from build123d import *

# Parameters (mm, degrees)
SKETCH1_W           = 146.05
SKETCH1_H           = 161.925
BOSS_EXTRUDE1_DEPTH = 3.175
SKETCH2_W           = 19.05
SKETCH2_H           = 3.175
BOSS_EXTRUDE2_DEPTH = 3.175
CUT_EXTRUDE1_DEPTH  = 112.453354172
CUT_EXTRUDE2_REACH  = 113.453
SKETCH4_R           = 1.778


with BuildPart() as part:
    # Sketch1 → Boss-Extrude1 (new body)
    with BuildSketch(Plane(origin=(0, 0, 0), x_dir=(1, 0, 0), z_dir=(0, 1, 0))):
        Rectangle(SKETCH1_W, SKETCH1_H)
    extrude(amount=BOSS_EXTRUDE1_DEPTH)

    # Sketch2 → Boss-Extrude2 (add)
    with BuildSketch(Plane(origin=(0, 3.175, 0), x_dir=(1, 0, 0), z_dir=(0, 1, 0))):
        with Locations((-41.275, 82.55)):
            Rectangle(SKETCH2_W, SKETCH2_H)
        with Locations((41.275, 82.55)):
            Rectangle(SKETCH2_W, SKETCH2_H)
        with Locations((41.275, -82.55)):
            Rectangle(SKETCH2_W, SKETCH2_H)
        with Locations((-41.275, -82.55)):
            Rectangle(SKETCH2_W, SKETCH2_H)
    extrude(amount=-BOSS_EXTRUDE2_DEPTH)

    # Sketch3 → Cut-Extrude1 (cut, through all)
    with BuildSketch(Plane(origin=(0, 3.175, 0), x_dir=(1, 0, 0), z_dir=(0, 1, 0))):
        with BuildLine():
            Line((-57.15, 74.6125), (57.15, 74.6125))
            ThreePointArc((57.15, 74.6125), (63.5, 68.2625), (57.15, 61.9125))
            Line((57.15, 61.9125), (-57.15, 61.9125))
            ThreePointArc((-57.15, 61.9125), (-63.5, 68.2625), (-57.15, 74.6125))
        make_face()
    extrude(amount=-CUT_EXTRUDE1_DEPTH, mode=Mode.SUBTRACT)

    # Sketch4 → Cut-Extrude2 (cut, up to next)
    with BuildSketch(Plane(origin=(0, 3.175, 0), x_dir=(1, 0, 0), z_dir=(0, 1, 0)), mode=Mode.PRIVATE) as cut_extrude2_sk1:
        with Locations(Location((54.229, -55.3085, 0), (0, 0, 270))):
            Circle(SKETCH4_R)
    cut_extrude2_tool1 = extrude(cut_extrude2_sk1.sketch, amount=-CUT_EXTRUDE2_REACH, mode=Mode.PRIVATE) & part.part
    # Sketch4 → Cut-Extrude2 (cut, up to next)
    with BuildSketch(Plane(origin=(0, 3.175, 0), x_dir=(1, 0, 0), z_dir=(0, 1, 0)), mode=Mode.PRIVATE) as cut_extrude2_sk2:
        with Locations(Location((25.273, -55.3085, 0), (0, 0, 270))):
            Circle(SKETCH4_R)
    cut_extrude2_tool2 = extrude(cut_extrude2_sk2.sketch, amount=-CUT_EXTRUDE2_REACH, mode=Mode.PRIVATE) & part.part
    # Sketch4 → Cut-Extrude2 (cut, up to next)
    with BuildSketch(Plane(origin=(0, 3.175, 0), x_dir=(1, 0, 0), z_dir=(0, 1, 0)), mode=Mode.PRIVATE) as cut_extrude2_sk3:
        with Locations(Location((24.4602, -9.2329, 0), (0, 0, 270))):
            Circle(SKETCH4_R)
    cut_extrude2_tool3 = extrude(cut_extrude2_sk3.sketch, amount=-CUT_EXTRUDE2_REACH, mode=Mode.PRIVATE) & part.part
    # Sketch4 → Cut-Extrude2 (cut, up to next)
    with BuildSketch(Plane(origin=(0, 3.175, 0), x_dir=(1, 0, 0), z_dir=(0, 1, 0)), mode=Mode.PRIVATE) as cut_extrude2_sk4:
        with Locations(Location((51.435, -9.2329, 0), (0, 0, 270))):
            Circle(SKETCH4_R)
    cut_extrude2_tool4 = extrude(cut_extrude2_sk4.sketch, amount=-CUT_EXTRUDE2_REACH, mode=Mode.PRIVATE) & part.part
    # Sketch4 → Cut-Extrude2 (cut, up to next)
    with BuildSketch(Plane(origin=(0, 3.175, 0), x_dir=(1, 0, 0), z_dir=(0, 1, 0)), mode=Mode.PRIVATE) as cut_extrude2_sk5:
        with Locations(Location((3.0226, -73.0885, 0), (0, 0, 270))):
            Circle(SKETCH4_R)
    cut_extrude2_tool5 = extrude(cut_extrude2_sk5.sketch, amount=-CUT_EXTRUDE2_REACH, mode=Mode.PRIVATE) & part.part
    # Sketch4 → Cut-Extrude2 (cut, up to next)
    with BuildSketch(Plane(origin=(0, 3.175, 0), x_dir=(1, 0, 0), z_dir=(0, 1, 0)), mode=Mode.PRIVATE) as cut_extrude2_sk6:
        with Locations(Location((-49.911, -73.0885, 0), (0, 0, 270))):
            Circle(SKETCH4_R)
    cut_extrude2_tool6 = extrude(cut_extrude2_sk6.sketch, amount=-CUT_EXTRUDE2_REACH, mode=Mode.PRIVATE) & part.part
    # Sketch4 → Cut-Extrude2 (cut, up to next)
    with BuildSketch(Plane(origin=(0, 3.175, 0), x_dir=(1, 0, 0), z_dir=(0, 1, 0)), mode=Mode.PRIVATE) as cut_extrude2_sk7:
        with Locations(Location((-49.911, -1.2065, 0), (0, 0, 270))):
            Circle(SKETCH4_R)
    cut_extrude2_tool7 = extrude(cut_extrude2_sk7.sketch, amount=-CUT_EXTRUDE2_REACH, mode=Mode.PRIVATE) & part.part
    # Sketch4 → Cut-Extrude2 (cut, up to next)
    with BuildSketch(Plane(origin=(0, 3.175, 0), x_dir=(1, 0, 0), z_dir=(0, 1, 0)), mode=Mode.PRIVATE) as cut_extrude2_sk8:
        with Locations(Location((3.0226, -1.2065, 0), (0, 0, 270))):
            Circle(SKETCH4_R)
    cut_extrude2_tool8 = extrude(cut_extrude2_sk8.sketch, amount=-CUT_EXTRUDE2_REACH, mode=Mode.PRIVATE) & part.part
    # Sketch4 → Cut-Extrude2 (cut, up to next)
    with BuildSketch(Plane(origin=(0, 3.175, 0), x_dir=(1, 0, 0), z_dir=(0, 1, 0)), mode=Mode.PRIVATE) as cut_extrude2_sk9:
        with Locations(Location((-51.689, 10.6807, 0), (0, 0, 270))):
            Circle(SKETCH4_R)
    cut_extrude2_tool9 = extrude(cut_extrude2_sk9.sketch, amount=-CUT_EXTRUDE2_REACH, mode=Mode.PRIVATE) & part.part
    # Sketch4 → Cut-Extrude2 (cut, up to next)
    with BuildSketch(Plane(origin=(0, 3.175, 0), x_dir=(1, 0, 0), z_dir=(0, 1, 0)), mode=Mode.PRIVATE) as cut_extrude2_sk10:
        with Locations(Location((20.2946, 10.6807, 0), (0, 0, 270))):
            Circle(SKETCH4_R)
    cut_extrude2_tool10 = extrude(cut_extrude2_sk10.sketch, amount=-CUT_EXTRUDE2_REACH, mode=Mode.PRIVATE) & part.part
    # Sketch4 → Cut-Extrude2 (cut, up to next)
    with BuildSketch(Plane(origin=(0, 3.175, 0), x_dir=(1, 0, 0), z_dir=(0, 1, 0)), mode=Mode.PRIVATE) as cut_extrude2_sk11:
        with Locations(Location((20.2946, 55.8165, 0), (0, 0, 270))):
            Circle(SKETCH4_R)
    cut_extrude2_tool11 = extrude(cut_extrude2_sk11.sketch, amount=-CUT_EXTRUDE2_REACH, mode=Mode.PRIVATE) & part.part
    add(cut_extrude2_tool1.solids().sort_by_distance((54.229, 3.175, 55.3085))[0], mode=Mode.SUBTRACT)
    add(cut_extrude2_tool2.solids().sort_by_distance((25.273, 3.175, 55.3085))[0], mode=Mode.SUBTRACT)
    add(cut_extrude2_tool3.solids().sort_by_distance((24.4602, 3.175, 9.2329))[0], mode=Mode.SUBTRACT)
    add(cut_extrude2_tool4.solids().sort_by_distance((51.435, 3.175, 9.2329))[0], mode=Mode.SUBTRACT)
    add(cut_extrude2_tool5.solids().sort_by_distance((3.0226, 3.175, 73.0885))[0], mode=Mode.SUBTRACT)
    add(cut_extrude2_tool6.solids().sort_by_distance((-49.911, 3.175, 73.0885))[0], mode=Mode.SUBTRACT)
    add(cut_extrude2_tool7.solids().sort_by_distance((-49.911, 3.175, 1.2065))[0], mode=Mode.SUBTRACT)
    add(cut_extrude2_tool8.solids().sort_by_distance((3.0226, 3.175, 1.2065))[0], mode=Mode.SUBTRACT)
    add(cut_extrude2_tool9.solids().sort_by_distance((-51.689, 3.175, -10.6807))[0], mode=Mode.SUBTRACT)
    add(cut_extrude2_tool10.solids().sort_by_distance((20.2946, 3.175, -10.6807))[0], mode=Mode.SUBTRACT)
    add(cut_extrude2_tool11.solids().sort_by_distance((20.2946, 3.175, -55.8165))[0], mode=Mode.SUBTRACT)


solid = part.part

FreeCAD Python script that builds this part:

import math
import FreeCAD as App
import Part
import Sketcher

V = App.Vector
Q = App.Units.Quantity


def add_polygon(sketch, points):
    """Adds a closed chain of lines whose ends are joined by coincident constraints."""
    first, n = sketch.GeometryCount, len(points)
    for a, b in zip(points, points[1:] + points[:1]):
        sketch.addGeometry(Part.LineSegment(App.Vector(*a, 0), App.Vector(*b, 0)), False)
    for i in range(n):
        sketch.addConstraint(Sketcher.Constraint("Coincident", first + i, 2, first + (i + 1) % n, 1))

doc = App.newDocument("Part")
body = doc.addObject("PartDesign::Body", "Body")

sketch1 = doc.addObject("Sketcher::SketchObject", "Sketch")
body.addObject(sketch1)
sketch1.AttachmentSupport = (doc.XZ_Plane, [""])
sketch1.MapMode = "FlatFace"
add_polygon(sketch1, [(-73.025, -80.9625), (-73.025, 80.9625), (73.025, 80.9625), (73.025, -80.9625)])
sketch1.addConstraint(Sketcher.Constraint("Vertical", 0))
sketch1.addConstraint(Sketcher.Constraint("Horizontal", 1))
sketch1.addConstraint(Sketcher.Constraint("Vertical", 2))
sketch1.addConstraint(Sketcher.Constraint("Horizontal", 3))
sketch1.addConstraint(Sketcher.Constraint("Symmetric", 0, 2, 2, 2, -1, 1))
sketch1.addConstraint(Sketcher.Constraint("DistanceX", 1, 1, 1, 2, Q("5.75 in")))
sketch1.addConstraint(Sketcher.Constraint("DistanceY", 0, 1, 0, 2, Q("6.375 in")))
pad1 = doc.addObject("PartDesign::Pad", "Pad")
body.addObject(pad1)
pad1.Profile = sketch1
pad1.Length = Q("0.125 in")
pad1.Reversed = True

sketch2 = doc.addObject("Sketcher::SketchObject", "Sketch001")
body.addObject(sketch2)
sketch2.AttachmentSupport = (doc.XZ_Plane, [""])
sketch2.MapMode = "FlatFace"
sketch2.AttachmentOffset = App.Placement(V(0, 0, -0.125 * 25.4), App.Rotation())
add_polygon(sketch2, [(-50.8, -84.1375), (-50.8, -80.9625), (-31.75, -80.9625), (-31.75, -84.1375)])
add_polygon(sketch2, [(31.75, -84.1375), (31.75, -80.9625), (50.8, -80.9625), (50.8, -84.1375)])
add_polygon(sketch2, [(31.75, 80.9625), (31.75, 84.1375), (50.8, 84.1375), (50.8, 80.9625)])
add_polygon(sketch2, [(-50.8, 80.9625), (-50.8, 84.1375), (-31.75, 84.1375), (-31.75, 80.9625)])
sketch2.addConstraint(Sketcher.Constraint("Vertical", 0))
sketch2.addConstraint(Sketcher.Constraint("Horizontal", 1))
sketch2.addConstraint(Sketcher.Constraint("Vertical", 2))
sketch2.addConstraint(Sketcher.Constraint("Horizontal", 3))
sketch2.addConstraint(Sketcher.Constraint("Vertical", 4))
sketch2.addConstraint(Sketcher.Constraint("Horizontal", 5))
sketch2.addConstraint(Sketcher.Constraint("Vertical", 6))
sketch2.addConstraint(Sketcher.Constraint("Horizontal", 7))
sketch2.addConstraint(Sketcher.Constraint("Vertical", 8))
sketch2.addConstraint(Sketcher.Constraint("Horizontal", 9))
sketch2.addConstraint(Sketcher.Constraint("Vertical", 10))
sketch2.addConstraint(Sketcher.Constraint("Horizontal", 11))
sketch2.addConstraint(Sketcher.Constraint("Vertical", 12))
sketch2.addConstraint(Sketcher.Constraint("Horizontal", 13))
sketch2.addConstraint(Sketcher.Constraint("Vertical", 14))
sketch2.addConstraint(Sketcher.Constraint("Horizontal", 15))
sketch2.addConstraint(Sketcher.Constraint("Symmetric", 2, 2, 8, 2, -1, 1))
sketch2.addConstraint(Sketcher.Constraint("Symmetric", 0, 2, 10, 2, -1, 1))
sketch2.addConstraint(Sketcher.Constraint("Symmetric", 6, 2, 12, 2, -1, 1))
sketch2.addConstraint(Sketcher.Constraint("Symmetric", 4, 2, 14, 2, -1, 1))
sketch2.addConstraint(Sketcher.Constraint("Symmetric", 1, 2, 4, 2, -2))
sketch2.addConstraint(Sketcher.Constraint("Symmetric", 3, 2, 6, 2, -2))
sketch2.addConstraint(Sketcher.Constraint("DistanceX", 0, 2, -1, 1, Q("2 in")))
sketch2.addConstraint(Sketcher.Constraint("DistanceX", 1, 1, 1, 2, Q("0.75 in")))
sketch2.addConstraint(Sketcher.Constraint("DistanceY", 4, 2, 8, 2, Q("6.5 in")))
sketch2.addConstraint(Sketcher.Constraint("DistanceY", 0, 1, 0, 2, Q("0.125 in")))
pad2 = doc.addObject("PartDesign::Pad", "Pad001")
body.addObject(pad2)
pad2.Profile = sketch2
pad2.Length = Q("0.125 in")

sketch3 = doc.addObject("Sketcher::SketchObject", "Sketch002")
body.addObject(sketch3)
sketch3.AttachmentSupport = (doc.XZ_Plane, [""])
sketch3.MapMode = "FlatFace"
sketch3.AttachmentOffset = App.Placement(V(0, 0, -0.125 * 25.4), App.Rotation())
sketch3.addGeometry(Part.LineSegment(V(57.15, -74.6125, 0), V(-57.15, -74.6125, 0)), False)
sketch3.addGeometry(Part.ArcOfCircle(Part.Circle(V(-57.15, -68.2625, 0), V(0, 0, 1), 6.35), math.radians(90), math.radians(270)), False)
sketch3.addGeometry(Part.LineSegment(V(-57.15, -61.9125, 0), V(57.15, -61.9125, 0)), False)
sketch3.addGeometry(Part.ArcOfCircle(Part.Circle(V(57.15, -68.2625, 0), V(0, 0, 1), 6.35), math.radians(-90), math.radians(90)), False)
sketch3.addConstraint(Sketcher.Constraint("Tangent", 0, 2, 1, 2))
sketch3.addConstraint(Sketcher.Constraint("Tangent", 1, 1, 2, 1))
sketch3.addConstraint(Sketcher.Constraint("Tangent", 2, 2, 3, 2))
sketch3.addConstraint(Sketcher.Constraint("Tangent", 3, 1, 0, 1))
sketch3.addConstraint(Sketcher.Constraint("Horizontal", 0))
sketch3.addConstraint(Sketcher.Constraint("Horizontal", 2))
sketch3.addConstraint(Sketcher.Constraint("Radius", 1, Q("0.25 in")))
sketch3.addConstraint(Sketcher.Constraint("DistanceX", 0, 2, 0, 1, Q("4.5 in")))
sketch3.addConstraint(Sketcher.Constraint("DistanceX", 1, 3, -1, 1, Q("2.25 in")))
sketch3.addConstraint(Sketcher.Constraint("DistanceY", 1, 3, -1, 1, Q("2.6875 in")))
pocket1 = doc.addObject("PartDesign::Pocket", "Pocket")
body.addObject(pocket1)
pocket1.Profile = sketch3
pocket1.Type = "ThroughAll"
pocket1.Reversed = True

sketch4 = doc.addObject("Sketcher::SketchObject", "Sketch003")
body.addObject(sketch4)
sketch4.AttachmentSupport = (doc.XZ_Plane, [""])
sketch4.MapMode = "FlatFace"
sketch4.AttachmentOffset = App.Placement(V(0, 0, -0.125 * 25.4), App.Rotation())
sketch4.addGeometry(Part.Circle(V(54.229, 55.3085, 0), V(0, 0, 1), 1.778), False)
sketch4.addConstraint(Sketcher.Constraint("Diameter", 0, Q("0.14 in")))
sketch4.addConstraint(Sketcher.Constraint("DistanceX", -1, 1, 0, 3, Q("2.135 in")))
sketch4.addConstraint(Sketcher.Constraint("DistanceY", -1, 1, 0, 3, Q("2.1775 in")))
pocket2 = doc.addObject("PartDesign::Pocket", "Pocket001")
body.addObject(pocket2)
pocket2.Profile = sketch4
pocket2.Type = "UpToFirst"
pocket2.Reversed = True

sketch5 = doc.addObject("Sketcher::SketchObject", "Sketch004")
body.addObject(sketch5)
sketch5.AttachmentSupport = (doc.XZ_Plane, [""])
sketch5.MapMode = "FlatFace"
sketch5.AttachmentOffset = App.Placement(V(0, 0, -0.125 * 25.4), App.Rotation())
sketch5.addGeometry(Part.Circle(V(25.273, 55.3085, 0), V(0, 0, 1), 1.778), False)
sketch5.addConstraint(Sketcher.Constraint("Diameter", 0, Q("0.14 in")))
sketch5.addConstraint(Sketcher.Constraint("DistanceX", -1, 1, 0, 3, Q("0.995 in")))
sketch5.addConstraint(Sketcher.Constraint("DistanceY", -1, 1, 0, 3, Q("2.1775 in")))
pocket3 = doc.addObject("PartDesign::Pocket", "Pocket002")
body.addObject(pocket3)
pocket3.Profile = sketch5
pocket3.Type = "UpToFirst"
pocket3.Reversed = True

sketch6 = doc.addObject("Sketcher::SketchObject", "Sketch005")
body.addObject(sketch6)
sketch6.AttachmentSupport = (doc.XZ_Plane, [""])
sketch6.MapMode = "FlatFace"
sketch6.AttachmentOffset = App.Placement(V(0, 0, -0.125 * 25.4), App.Rotation())
sketch6.addGeometry(Part.Circle(V(24.4602, 9.2329, 0), V(0, 0, 1), 1.778), False)
sketch6.addConstraint(Sketcher.Constraint("Diameter", 0, Q("0.14 in")))
sketch6.addConstraint(Sketcher.Constraint("DistanceX", -1, 1, 0, 3, Q("0.963 in")))
sketch6.addConstraint(Sketcher.Constraint("DistanceY", -1, 1, 0, 3, Q("0.3635 in")))
pocket4 = doc.addObject("PartDesign::Pocket", "Pocket003")
body.addObject(pocket4)
pocket4.Profile = sketch6
pocket4.Type = "UpToFirst"
pocket4.Reversed = True

sketch7 = doc.addObject("Sketcher::SketchObject", "Sketch006")
body.addObject(sketch7)
sketch7.AttachmentSupport = (doc.XZ_Plane, [""])
sketch7.MapMode = "FlatFace"
sketch7.AttachmentOffset = App.Placement(V(0, 0, -0.125 * 25.4), App.Rotation())
sketch7.addGeometry(Part.Circle(V(51.435, 9.2329, 0), V(0, 0, 1), 1.778), False)
sketch7.addConstraint(Sketcher.Constraint("Diameter", 0, Q("0.14 in")))
sketch7.addConstraint(Sketcher.Constraint("DistanceX", -1, 1, 0, 3, Q("2.025 in")))
sketch7.addConstraint(Sketcher.Constraint("DistanceY", -1, 1, 0, 3, Q("0.3635 in")))
pocket5 = doc.addObject("PartDesign::Pocket", "Pocket004")
body.addObject(pocket5)
pocket5.Profile = sketch7
pocket5.Type = "UpToFirst"
pocket5.Reversed = True

sketch8 = doc.addObject("Sketcher::SketchObject", "Sketch007")
body.addObject(sketch8)
sketch8.AttachmentSupport = (doc.XZ_Plane, [""])
sketch8.MapMode = "FlatFace"
sketch8.AttachmentOffset = App.Placement(V(0, 0, -0.125 * 25.4), App.Rotation())
sketch8.addGeometry(Part.Circle(V(3.0226, 73.0885, 0), V(0, 0, 1), 1.778), False)
sketch8.addConstraint(Sketcher.Constraint("Diameter", 0, Q("0.14 in")))
sketch8.addConstraint(Sketcher.Constraint("DistanceX", -1, 1, 0, 3, Q("0.119 in")))
sketch8.addConstraint(Sketcher.Constraint("DistanceY", -1, 1, 0, 3, Q("2.8775 in")))
pocket6 = doc.addObject("PartDesign::Pocket", "Pocket005")
body.addObject(pocket6)
pocket6.Profile = sketch8
pocket6.Type = "UpToFirst"
pocket6.Reversed = True

sketch9 = doc.addObject("Sketcher::SketchObject", "Sketch008")
body.addObject(sketch9)
sketch9.AttachmentSupport = (doc.XZ_Plane, [""])
sketch9.MapMode = "FlatFace"
sketch9.AttachmentOffset = App.Placement(V(0, 0, -0.125 * 25.4), App.Rotation())
sketch9.addGeometry(Part.Circle(V(-49.911, 73.0885, 0), V(0, 0, 1), 1.778), False)
sketch9.addConstraint(Sketcher.Constraint("Diameter", 0, Q("0.14 in")))
sketch9.addConstraint(Sketcher.Constraint("DistanceX", 0, 3, -1, 1, Q("1.965 in")))
sketch9.addConstraint(Sketcher.Constraint("DistanceY", -1, 1, 0, 3, Q("2.8775 in")))
pocket7 = doc.addObject("PartDesign::Pocket", "Pocket006")
body.addObject(pocket7)
pocket7.Profile = sketch9
pocket7.Type = "UpToFirst"
pocket7.Reversed = True

sketch10 = doc.addObject("Sketcher::SketchObject", "Sketch009")
body.addObject(sketch10)
sketch10.AttachmentSupport = (doc.XZ_Plane, [""])
sketch10.MapMode = "FlatFace"
sketch10.AttachmentOffset = App.Placement(V(0, 0, -0.125 * 25.4), App.Rotation())
sketch10.addGeometry(Part.Circle(V(-49.911, 1.2065, 0), V(0, 0, 1), 1.778), False)
sketch10.addConstraint(Sketcher.Constraint("Diameter", 0, Q("0.14 in")))
sketch10.addConstraint(Sketcher.Constraint("DistanceX", 0, 3, -1, 1, Q("1.965 in")))
sketch10.addConstraint(Sketcher.Constraint("DistanceY", -1, 1, 0, 3, Q("0.0475 in")))
pocket8 = doc.addObject("PartDesign::Pocket", "Pocket007")
body.addObject(pocket8)
pocket8.Profile = sketch10
pocket8.Type = "UpToFirst"
pocket8.Reversed = True

sketch11 = doc.addObject("Sketcher::SketchObject", "Sketch010")
body.addObject(sketch11)
sketch11.AttachmentSupport = (doc.XZ_Plane, [""])
sketch11.MapMode = "FlatFace"
sketch11.AttachmentOffset = App.Placement(V(0, 0, -0.125 * 25.4), App.Rotation())
sketch11.addGeometry(Part.Circle(V(3.0226, 1.2065, 0), V(0, 0, 1), 1.778), False)
sketch11.addConstraint(Sketcher.Constraint("Diameter", 0, Q("0.14 in")))
sketch11.addConstraint(Sketcher.Constraint("DistanceX", -1, 1, 0, 3, Q("0.119 in")))
sketch11.addConstraint(Sketcher.Constraint("DistanceY", -1, 1, 0, 3, Q("0.0475 in")))
pocket9 = doc.addObject("PartDesign::Pocket", "Pocket008")
body.addObject(pocket9)
pocket9.Profile = sketch11
pocket9.Type = "UpToFirst"
pocket9.Reversed = True

sketch12 = doc.addObject("Sketcher::SketchObject", "Sketch011")
body.addObject(sketch12)
sketch12.AttachmentSupport = (doc.XZ_Plane, [""])
sketch12.MapMode = "FlatFace"
sketch12.AttachmentOffset = App.Placement(V(0, 0, -0.125 * 25.4), App.Rotation())
sketch12.addGeometry(Part.Circle(V(-51.689, -10.6807, 0), V(0, 0, 1), 1.778), False)
sketch12.addConstraint(Sketcher.Constraint("Diameter", 0, Q("0.14 in")))
sketch12.addConstraint(Sketcher.Constraint("DistanceX", 0, 3, -1, 1, Q("2.035 in")))
sketch12.addConstraint(Sketcher.Constraint("DistanceY", 0, 3, -1, 1, Q("0.4205 in")))
pocket10 = doc.addObject("PartDesign::Pocket", "Pocket009")
body.addObject(pocket10)
pocket10.Profile = sketch12
pocket10.Type = "UpToFirst"
pocket10.Reversed = True

sketch13 = doc.addObject("Sketcher::SketchObject", "Sketch012")
body.addObject(sketch13)
sketch13.AttachmentSupport = (doc.XZ_Plane, [""])
sketch13.MapMode = "FlatFace"
sketch13.AttachmentOffset = App.Placement(V(0, 0, -0.125 * 25.4), App.Rotation())
sketch13.addGeometry(Part.Circle(V(20.2946, -10.6807, 0), V(0, 0, 1), 1.778), False)
sketch13.addConstraint(Sketcher.Constraint("Diameter", 0, Q("0.14 in")))
sketch13.addConstraint(Sketcher.Constraint("DistanceX", -1, 1, 0, 3, Q("0.799 in")))
sketch13.addConstraint(Sketcher.Constraint("DistanceY", 0, 3, -1, 1, Q("0.4205 in")))
pocket11 = doc.addObject("PartDesign::Pocket", "Pocket010")
body.addObject(pocket11)
pocket11.Profile = sketch13
pocket11.Type = "UpToFirst"
pocket11.Reversed = True

sketch14 = doc.addObject("Sketcher::SketchObject", "Sketch013")
body.addObject(sketch14)
sketch14.AttachmentSupport = (doc.XZ_Plane, [""])
sketch14.MapMode = "FlatFace"
sketch14.AttachmentOffset = App.Placement(V(0, 0, -0.125 * 25.4), App.Rotation())
sketch14.addGeometry(Part.Circle(V(20.2946, -55.8165, 0), V(0, 0, 1), 1.778), False)
sketch14.addConstraint(Sketcher.Constraint("Diameter", 0, Q("0.14 in")))
sketch14.addConstraint(Sketcher.Constraint("DistanceX", -1, 1, 0, 3, Q("0.799 in")))
sketch14.addConstraint(Sketcher.Constraint("DistanceY", 0, 3, -1, 1, Q("2.1975 in")))
pocket12 = doc.addObject("PartDesign::Pocket", "Pocket011")
body.addObject(pocket12)
pocket12.Profile = sketch14
pocket12.Type = "UpToFirst"
pocket12.Reversed = True

doc.recompute()
